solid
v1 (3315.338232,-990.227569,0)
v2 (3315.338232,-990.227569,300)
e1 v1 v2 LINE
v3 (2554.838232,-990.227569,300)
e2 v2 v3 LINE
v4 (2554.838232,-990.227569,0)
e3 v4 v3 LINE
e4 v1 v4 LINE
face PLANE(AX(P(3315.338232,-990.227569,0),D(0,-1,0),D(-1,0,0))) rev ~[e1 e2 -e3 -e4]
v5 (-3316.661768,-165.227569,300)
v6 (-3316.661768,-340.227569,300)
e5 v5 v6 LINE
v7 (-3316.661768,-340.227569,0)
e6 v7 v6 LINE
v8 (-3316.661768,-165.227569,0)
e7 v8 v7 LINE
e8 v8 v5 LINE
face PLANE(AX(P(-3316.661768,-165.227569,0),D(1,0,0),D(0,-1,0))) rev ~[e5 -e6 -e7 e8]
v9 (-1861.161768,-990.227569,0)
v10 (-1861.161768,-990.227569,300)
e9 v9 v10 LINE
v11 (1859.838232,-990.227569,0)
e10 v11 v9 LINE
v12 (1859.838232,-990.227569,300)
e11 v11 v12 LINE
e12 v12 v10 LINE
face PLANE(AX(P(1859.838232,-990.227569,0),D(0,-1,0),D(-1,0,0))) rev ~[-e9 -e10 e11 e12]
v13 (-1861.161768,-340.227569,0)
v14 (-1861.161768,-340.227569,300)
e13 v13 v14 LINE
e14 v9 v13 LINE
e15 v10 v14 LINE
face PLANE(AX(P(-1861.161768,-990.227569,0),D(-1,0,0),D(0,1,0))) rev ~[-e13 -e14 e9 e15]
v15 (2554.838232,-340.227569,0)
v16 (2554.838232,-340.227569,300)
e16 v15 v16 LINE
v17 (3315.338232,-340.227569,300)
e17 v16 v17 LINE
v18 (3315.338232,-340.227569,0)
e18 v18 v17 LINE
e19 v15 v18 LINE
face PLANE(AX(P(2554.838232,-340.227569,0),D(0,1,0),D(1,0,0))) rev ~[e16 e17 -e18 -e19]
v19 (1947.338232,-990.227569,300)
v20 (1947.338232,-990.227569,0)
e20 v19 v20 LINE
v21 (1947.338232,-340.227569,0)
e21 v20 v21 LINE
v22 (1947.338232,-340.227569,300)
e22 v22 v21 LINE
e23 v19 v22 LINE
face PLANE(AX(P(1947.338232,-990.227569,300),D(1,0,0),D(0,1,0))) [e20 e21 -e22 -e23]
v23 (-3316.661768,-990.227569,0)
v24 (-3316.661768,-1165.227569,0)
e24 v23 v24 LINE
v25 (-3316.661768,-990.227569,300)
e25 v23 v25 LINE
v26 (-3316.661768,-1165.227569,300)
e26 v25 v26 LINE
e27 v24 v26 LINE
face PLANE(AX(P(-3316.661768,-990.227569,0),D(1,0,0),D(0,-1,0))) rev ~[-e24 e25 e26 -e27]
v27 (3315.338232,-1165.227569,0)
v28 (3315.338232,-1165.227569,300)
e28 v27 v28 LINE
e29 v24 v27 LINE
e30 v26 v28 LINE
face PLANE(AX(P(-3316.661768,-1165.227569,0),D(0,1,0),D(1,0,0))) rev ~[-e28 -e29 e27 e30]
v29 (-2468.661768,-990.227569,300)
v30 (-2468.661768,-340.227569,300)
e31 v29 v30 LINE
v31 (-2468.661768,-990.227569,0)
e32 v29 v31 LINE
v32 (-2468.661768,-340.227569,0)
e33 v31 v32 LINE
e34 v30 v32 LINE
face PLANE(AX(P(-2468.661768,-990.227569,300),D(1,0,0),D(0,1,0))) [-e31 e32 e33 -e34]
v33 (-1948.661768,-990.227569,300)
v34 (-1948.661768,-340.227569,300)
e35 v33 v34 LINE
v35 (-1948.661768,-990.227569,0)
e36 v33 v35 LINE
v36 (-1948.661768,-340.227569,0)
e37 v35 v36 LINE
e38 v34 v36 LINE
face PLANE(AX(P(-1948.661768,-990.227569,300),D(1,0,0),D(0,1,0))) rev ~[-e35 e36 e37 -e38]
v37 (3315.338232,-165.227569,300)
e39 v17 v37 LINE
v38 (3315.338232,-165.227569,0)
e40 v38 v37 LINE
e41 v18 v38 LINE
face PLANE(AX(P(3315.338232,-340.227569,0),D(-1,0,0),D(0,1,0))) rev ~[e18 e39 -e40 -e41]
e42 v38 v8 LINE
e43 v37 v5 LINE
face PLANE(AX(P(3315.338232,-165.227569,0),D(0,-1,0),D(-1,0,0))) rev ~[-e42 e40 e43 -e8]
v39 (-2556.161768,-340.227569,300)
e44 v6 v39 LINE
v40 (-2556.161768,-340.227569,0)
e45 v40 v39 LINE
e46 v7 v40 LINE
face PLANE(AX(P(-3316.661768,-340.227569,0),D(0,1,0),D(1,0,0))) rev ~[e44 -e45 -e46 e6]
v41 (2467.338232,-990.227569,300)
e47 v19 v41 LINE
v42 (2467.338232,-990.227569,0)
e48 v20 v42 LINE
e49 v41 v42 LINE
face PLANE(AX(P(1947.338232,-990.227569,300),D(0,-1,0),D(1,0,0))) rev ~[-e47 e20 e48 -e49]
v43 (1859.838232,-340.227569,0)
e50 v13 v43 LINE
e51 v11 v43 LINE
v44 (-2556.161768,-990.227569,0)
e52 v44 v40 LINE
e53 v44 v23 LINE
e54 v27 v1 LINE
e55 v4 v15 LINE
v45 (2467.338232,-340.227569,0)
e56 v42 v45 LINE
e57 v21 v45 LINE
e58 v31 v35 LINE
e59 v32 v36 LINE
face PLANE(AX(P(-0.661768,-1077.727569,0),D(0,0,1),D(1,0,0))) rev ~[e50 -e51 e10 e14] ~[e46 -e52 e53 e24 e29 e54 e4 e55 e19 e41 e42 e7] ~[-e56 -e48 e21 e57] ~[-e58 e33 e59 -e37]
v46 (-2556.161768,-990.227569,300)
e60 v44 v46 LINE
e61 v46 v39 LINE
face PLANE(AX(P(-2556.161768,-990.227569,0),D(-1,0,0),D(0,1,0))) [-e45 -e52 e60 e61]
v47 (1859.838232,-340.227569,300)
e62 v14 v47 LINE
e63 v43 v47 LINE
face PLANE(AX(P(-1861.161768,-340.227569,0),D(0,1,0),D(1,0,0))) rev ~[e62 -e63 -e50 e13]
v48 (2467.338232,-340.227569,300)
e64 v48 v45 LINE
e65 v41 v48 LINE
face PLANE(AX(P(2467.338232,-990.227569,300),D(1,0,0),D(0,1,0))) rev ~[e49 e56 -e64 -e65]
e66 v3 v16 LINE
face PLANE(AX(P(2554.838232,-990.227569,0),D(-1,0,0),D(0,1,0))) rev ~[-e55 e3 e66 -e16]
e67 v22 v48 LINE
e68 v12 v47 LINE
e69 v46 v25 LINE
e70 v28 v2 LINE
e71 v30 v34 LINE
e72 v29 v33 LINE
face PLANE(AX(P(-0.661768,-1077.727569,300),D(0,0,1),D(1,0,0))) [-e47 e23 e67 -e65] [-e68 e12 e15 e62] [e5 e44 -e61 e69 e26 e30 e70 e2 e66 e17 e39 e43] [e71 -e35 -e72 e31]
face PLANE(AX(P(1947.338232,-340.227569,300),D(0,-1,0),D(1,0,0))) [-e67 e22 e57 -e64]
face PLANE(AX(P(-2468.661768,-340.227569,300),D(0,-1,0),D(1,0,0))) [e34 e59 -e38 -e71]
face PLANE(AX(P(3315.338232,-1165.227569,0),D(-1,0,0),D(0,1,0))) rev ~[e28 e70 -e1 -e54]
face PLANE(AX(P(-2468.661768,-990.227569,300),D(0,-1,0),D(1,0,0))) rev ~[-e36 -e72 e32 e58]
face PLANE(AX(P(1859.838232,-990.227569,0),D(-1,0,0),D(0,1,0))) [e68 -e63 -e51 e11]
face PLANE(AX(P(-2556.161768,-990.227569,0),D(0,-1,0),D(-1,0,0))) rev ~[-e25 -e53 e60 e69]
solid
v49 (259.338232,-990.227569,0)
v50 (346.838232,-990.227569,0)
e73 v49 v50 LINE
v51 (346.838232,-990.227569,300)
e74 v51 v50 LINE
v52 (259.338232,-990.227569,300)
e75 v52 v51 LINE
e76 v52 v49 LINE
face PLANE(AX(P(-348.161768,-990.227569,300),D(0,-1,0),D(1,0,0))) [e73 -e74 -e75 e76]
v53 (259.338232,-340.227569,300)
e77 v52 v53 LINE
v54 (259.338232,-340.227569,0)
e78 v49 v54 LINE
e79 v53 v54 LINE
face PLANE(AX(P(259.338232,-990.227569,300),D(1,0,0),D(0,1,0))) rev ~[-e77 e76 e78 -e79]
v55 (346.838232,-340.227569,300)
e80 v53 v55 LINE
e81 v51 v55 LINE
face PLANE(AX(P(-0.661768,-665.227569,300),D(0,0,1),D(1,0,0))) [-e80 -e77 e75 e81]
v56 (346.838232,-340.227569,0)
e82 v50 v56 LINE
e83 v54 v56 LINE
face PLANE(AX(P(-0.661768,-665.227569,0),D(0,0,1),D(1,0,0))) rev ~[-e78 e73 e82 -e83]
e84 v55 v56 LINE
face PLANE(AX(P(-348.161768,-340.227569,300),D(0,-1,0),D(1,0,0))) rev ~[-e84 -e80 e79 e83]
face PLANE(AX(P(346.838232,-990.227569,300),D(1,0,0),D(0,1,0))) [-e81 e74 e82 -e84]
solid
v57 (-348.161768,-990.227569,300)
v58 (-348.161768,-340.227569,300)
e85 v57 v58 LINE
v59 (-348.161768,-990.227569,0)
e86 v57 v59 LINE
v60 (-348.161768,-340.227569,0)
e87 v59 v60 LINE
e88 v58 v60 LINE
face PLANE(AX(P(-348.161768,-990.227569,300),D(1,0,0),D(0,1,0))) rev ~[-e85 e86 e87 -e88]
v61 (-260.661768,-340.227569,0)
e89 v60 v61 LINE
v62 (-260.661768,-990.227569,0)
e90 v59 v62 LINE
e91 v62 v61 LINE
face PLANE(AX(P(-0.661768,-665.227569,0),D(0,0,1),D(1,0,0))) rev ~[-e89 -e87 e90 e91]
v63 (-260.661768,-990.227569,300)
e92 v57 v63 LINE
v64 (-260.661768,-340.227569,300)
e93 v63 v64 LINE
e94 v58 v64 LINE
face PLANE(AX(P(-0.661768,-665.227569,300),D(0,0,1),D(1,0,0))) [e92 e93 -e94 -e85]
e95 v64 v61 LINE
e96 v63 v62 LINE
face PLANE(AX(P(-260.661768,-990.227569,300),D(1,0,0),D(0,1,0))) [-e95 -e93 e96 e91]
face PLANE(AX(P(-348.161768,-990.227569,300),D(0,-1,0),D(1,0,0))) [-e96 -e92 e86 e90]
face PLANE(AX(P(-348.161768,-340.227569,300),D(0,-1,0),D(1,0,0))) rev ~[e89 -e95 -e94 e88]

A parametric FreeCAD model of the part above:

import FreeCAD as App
import Part
import Sketcher

V = App.Vector
Q = App.Units.Quantity

doc = App.newDocument("Part")
params = doc.addObject("Spreadsheet::Sheet", "Params")
for row, (alias, value) in enumerate([
    ("sketch1_width", "6632 mm"),
    ("sketch1_width2", "3721 mm"),
    ("sketch1_height", "175 mm"),
    ("sketch1_height2", "650 mm"),
    ("sketch1_width3", "760.5 mm"),
    ("pad1_length", "300 mm"),
    ("sketch2_width", "520 mm"),
    ("sketch2_height", "650 mm"),
    ("sketch3_width", "695 mm"),
    ("sketch3_height", "650 mm"),
    ("pad2_length", "300 mm"),
    ("sketch4_width", "520 mm"),
    ("sketch4_height", "650 mm"),
], start=1):
    params.set(f"A{row}", alias)
    params.set(f"B{row}", "=" + value)
    params.setAlias(f"B{row}", alias)

body = doc.addObject("PartDesign::Body", "Body")

# Sketch on XY plane
sketch1 = doc.addObject("Sketcher::SketchObject", "Sketch")
body.addObject(sketch1)
sketch1.AttachmentSupport = (doc.XY_Plane, [""])
sketch1.MapMode = "FlatFace"
sketch1.addGeometry([
    Part.LineSegment(V(-3317, -990, 0), V(-3317, -1165, 0)),  # 0
    Part.LineSegment(V(-3317, -1165, 0), V(3315, -1165, 0)),  # 1
    Part.LineSegment(V(3315, -1165, 0), V(3315, -990, 0)),  # 2
    Part.LineSegment(V(3315, -990, 0), V(2555, -990, 0)),  # 3
    Part.LineSegment(V(2555, -990, 0), V(2555, -340, 0)),  # 4
    Part.LineSegment(V(2555, -340, 0), V(3315, -340, 0)),  # 5
    Part.LineSegment(V(3315, -340, 0), V(3315, -165, 0)),  # 6
    Part.LineSegment(V(3315, -165, 0), V(-3317, -165, 0)),  # 7
    Part.LineSegment(V(-3317, -165, 0), V(-3317, -340, 0)),  # 8
    Part.LineSegment(V(-3317, -340, 0), V(-2556, -340, 0)),  # 9
    Part.LineSegment(V(-2556, -340, 0), V(-2556, -990, 0)),  # 10
    Part.LineSegment(V(-2556, -990, 0), V(-3317, -990, 0)),  # 11
    Part.LineSegment(V(1860, -990, 0), V(-1861, -990, 0)),  # 12
    Part.LineSegment(V(-1861, -990, 0), V(-1861, -340, 0)),  # 13
    Part.LineSegment(V(-1861, -340, 0), V(1860, -340, 0)),  # 14
    Part.LineSegment(V(1860, -340, 0), V(1860, -990, 0)),  # 15
], False)
sketch1.addConstraint([
    Sketcher.Constraint("Coincident", 0, 2, 1, 1),
    Sketcher.Constraint("Coincident", 1, 2, 2, 1),
    Sketcher.Constraint("Coincident", 2, 2, 3, 1),
    Sketcher.Constraint("Coincident", 3, 2, 4, 1),
    Sketcher.Constraint("Coincident", 4, 2, 5, 1),
    Sketcher.Constraint("Coincident", 5, 2, 6, 1),
    Sketcher.Constraint("Coincident", 6, 2, 7, 1),
    Sketcher.Constraint("Coincident", 7, 2, 8, 1),
    Sketcher.Constraint("Coincident", 8, 2, 9, 1),
    Sketcher.Constraint("Coincident", 9, 2, 10, 1),
    Sketcher.Constraint("Coincident", 10, 2, 11, 1),
    Sketcher.Constraint("Coincident", 11, 2, 0, 1),
    Sketcher.Constraint("Coincident", 12, 2, 13, 1),
    Sketcher.Constraint("Coincident", 13, 2, 14, 1),
    Sketcher.Constraint("Coincident", 14, 2, 15, 1),
    Sketcher.Constraint("Coincident", 15, 2, 12, 1),
    Sketcher.Constraint("Vertical", 0),
    Sketcher.Constraint("Horizontal", 1),
    Sketcher.Constraint("Vertical", 2),
    Sketcher.Constraint("Horizontal", 3),
    Sketcher.Constraint("Vertical", 4),
    Sketcher.Constraint("Horizontal", 5),
    Sketcher.Constraint("Vertical", 6),
    Sketcher.Constraint("Horizontal", 7),
    Sketcher.Constraint("Vertical", 8),
    Sketcher.Constraint("Horizontal", 9),
    Sketcher.Constraint("Vertical", 10),
    Sketcher.Constraint("Horizontal", 11),
    Sketcher.Constraint("Horizontal", 12),
    Sketcher.Constraint("Vertical", 13),
    Sketcher.Constraint("Horizontal", 14),
    Sketcher.Constraint("Vertical", 15),
    Sketcher.Constraint("Horizontal", 5, 2, 8, 2),
    Sketcher.Constraint("Horizontal", 3, 2, 10, 2),
    Sketcher.Constraint("Horizontal", 11, 2, 12, 2),
    Sketcher.Constraint("Horizontal", 9, 2, 13, 2),
    Sketcher.Constraint("Vertical", 2, 2, 5, 2),
    Sketcher.Constraint("Vertical", 0, 2, 7, 2),
    Sketcher.Constraint("Equal", 5, 9),
    Sketcher.Constraint("Equal", 2, 6),
    Sketcher.Constraint("DistanceX", 1, 1, 1, 2, Q("6632 mm")),
    Sketcher.Constraint("DistanceX", 12, 2, 12, 1, Q("3721 mm")),
    Sketcher.Constraint("DistanceY", 0, 2, 0, 1, Q("175 mm")),
    Sketcher.Constraint("DistanceY", 4, 1, 4, 2, Q("650 mm")),
    Sketcher.Constraint("DistanceX", 3, 2, 3, 1, Q("760.5 mm")),
    Sketcher.Constraint("DistanceX", 10, 2, 12, 2, Q("695 mm")),
    Sketcher.Constraint("DistanceY", 0, 2, -1, 1, Q("1165.227569 mm")),
    Sketcher.Constraint("DistanceX", 12, 2, -1, 1, Q("1861.161768 mm")),
])
sketch1.setExpression("Constraints[40]", "Params.sketch1_width")
sketch1.setExpression("Constraints[41]", "Params.sketch1_width2")
sketch1.setExpression("Constraints[42]", "Params.sketch1_height")
sketch1.setExpression("Constraints[43]", "Params.sketch1_height2")
sketch1.setExpression("Constraints[44]", "Params.sketch1_width3")
pad1 = doc.addObject("PartDesign::Pad", "Pad")
body.addObject(pad1)
pad1.Profile = sketch1
pad1.setExpression("Length", "Params.pad1_length")

# Sketch on XY plane
sketch2 = doc.addObject("Sketcher::SketchObject", "Sketch001")
body.addObject(sketch2)
sketch2.AttachmentSupport = (doc.XY_Plane, [""])
sketch2.MapMode = "FlatFace"
sketch2.AttachmentOffset = App.Placement(V(0, 0, 300), App.Rotation())
sketch2.addGeometry([
    Part.LineSegment(V(-2469, -340, 0), V(-2469, -990, 0)),  # 0
    Part.LineSegment(V(-2469, -990, 0), V(-1949, -990, 0)),  # 1
    Part.LineSegment(V(-1949, -990, 0), V(-1949, -340, 0)),  # 2
    Part.LineSegment(V(-1949, -340, 0), V(-2469, -340, 0)),  # 3
    Part.LineSegment(V(1947, -340, 0), V(1947, -990, 0)),  # 4
    Part.LineSegment(V(1947, -990, 0), V(2467, -990, 0)),  # 5
    Part.LineSegment(V(2467, -990, 0), V(2467, -340, 0)),  # 6
    Part.LineSegment(V(2467, -340, 0), V(1947, -340, 0)),  # 7
], False)
sketch2.addConstraint([
    Sketcher.Constraint("Coincident", 0, 2, 1, 1),
    Sketcher.Constraint("Coincident", 1, 2, 2, 1),
    Sketcher.Constraint("Coincident", 2, 2, 3, 1),
    Sketcher.Constraint("Coincident", 3, 2, 0, 1),
    Sketcher.Constraint("Coincident", 4, 2, 5, 1),
    Sketcher.Constraint("Coincident", 5, 2, 6, 1),
    Sketcher.Constraint("Coincident", 6, 2, 7, 1),
    Sketcher.Constraint("Coincident", 7, 2, 4, 1),
    Sketcher.Constraint("Vertical", 0),
    Sketcher.Constraint("Horizontal", 1),
    Sketcher.Constraint("Vertical", 2),
    Sketcher.Constraint("Horizontal", 3),
    Sketcher.Constraint("Vertical", 4),
    Sketcher.Constraint("Horizontal", 5),
    Sketcher.Constraint("Vertical", 6),
    Sketcher.Constraint("Horizontal", 7),
    Sketcher.Constraint("Horizontal", 1, 2, 4, 2),
    Sketcher.Constraint("Horizontal", 3, 2, 6, 2),
    Sketcher.Constraint("Equal", 3, 5),
    Sketcher.Constraint("DistanceX", 1, 1, 1, 2, Q("520 mm")),
    Sketcher.Constraint("DistanceY", 0, 2, 0, 1, Q("650 mm")),
    Sketcher.Constraint("DistanceX", 1, 2, 4, 2, Q("3896 mm")),
    Sketcher.Constraint("DistanceY", 0, 2, -1, 1, Q("990.227569 mm")),
    Sketcher.Constraint("DistanceX", 1, 2, -1, 1, Q("1948.661768 mm")),
])
sketch2.setExpression("Constraints[19]", "Params.sketch2_width")
sketch2.setExpression("Constraints[20]", "Params.sketch2_height")
pocket1 = doc.addObject("PartDesign::Pocket", "Pocket")
body.addObject(pocket1)
pocket1.Profile = sketch2
pocket1.Type = "ThroughAll"
body2 = doc.addObject("PartDesign::Body", "Body001")
body2.AllowCompound = True

# Sketch on XY plane
sketch3 = doc.addObject("Sketcher::SketchObject", "Sketch002")
body2.addObject(sketch3)
sketch3.AttachmentSupport = (doc.getObject("XY_Plane001"), [""])
sketch3.MapMode = "FlatFace"
sketch3.AttachmentOffset = App.Placement(V(0, 0, 300), App.Rotation())
sketch3.addGeometry([
    Part.LineSegment(V(-348, -340, 0), V(-348, -990, 0)),
    Part.LineSegment(V(-348, -990, 0), V(347, -990, 0)),
    Part.LineSegment(V(347, -990, 0), V(347, -340, 0)),
    Part.LineSegment(V(347, -340, 0), V(-348, -340, 0)),
], False)
sketch3.addConstraint([
    Sketcher.Constraint("Coincident", 0, 2, 1, 1),
    Sketcher.Constraint("Coincident", 1, 2, 2, 1),
    Sketcher.Constraint("Coincident", 2, 2, 3, 1),
    Sketcher.Constraint("Coincident", 3, 2, 0, 1),
    Sketcher.Constraint("Vertical", 0),
    Sketcher.Constraint("Horizontal", 1),
    Sketcher.Constraint("Vertical", 2),
    Sketcher.Constraint("Horizontal", 3),
    Sketcher.Constraint("DistanceX", 1, 1, 1, 2, Q("695 mm")),
    Sketcher.Constraint("DistanceY", 0, 2, 0, 1, Q("650 mm")),
    Sketcher.Constraint("DistanceX", 0, 2, -1, 1, Q("348.161768 mm")),
    Sketcher.Constraint("DistanceY", 0, 2, -1, 1, Q("990.227569 mm")),
])
sketch3.setExpression("Constraints[8]", "Params.sketch3_width")
sketch3.setExpression("Constraints[9]", "Params.sketch3_height")
pad2 = doc.addObject("PartDesign::Pad", "Pad001")
body2.addObject(pad2)
pad2.Profile = sketch3
pad2.setExpression("Length", "Params.pad2_length")
pad2.Reversed = True

# Sketch on XY plane
sketch4 = doc.addObject("Sketcher::SketchObject", "Sketch003")
body2.addObject(sketch4)
sketch4.AttachmentSupport = (doc.getObject("XY_Plane001"), [""])
sketch4.MapMode = "FlatFace"
sketch4.AttachmentOffset = App.Placement(V(0, 0, 300), App.Rotation())
sketch4.addGeometry([
    Part.LineSegment(V(-261, -340, 0), V(-261, -990, 0)),
    Part.LineSegment(V(-261, -990, 0), V(259, -990, 0)),
    Part.LineSegment(V(259, -990, 0), V(259, -340, 0)),
    Part.LineSegment(V(259, -340, 0), V(-261, -340, 0)),
], False)
sketch4.addConstraint([
    Sketcher.Constraint("Coincident", 0, 2, 1, 1),
    Sketcher.Constraint("Coincident", 1, 2, 2, 1),
    Sketcher.Constraint("Coincident", 2, 2, 3, 1),
    Sketcher.Constraint("Coincident", 3, 2, 0, 1),
    Sketcher.Constraint("Vertical", 0),
    Sketcher.Constraint("Horizontal", 1),
    Sketcher.Constraint("Vertical", 2),
    Sketcher.Constraint("Horizontal", 3),
    Sketcher.Constraint("DistanceX", 1, 1, 1, 2, Q("520 mm")),
    Sketcher.Constraint("DistanceY", 0, 2, 0, 1, Q("650 mm")),
    Sketcher.Constraint("DistanceX", 0, 2, -1, 1, Q("260.661768 mm")),
    Sketcher.Constraint("DistanceY", 0, 2, -1, 1, Q("990.227569 mm")),
])
sketch4.setExpression("Constraints[8]", "Params.sketch4_width")
sketch4.setExpression("Constraints[9]", "Params.sketch4_height")
pocket2 = doc.addObject("PartDesign::Pocket", "Pocket001")
body2.addObject(pocket2)
pocket2.Profile = sketch4
pocket2.Type = "ThroughAll"

doc.recompute()
